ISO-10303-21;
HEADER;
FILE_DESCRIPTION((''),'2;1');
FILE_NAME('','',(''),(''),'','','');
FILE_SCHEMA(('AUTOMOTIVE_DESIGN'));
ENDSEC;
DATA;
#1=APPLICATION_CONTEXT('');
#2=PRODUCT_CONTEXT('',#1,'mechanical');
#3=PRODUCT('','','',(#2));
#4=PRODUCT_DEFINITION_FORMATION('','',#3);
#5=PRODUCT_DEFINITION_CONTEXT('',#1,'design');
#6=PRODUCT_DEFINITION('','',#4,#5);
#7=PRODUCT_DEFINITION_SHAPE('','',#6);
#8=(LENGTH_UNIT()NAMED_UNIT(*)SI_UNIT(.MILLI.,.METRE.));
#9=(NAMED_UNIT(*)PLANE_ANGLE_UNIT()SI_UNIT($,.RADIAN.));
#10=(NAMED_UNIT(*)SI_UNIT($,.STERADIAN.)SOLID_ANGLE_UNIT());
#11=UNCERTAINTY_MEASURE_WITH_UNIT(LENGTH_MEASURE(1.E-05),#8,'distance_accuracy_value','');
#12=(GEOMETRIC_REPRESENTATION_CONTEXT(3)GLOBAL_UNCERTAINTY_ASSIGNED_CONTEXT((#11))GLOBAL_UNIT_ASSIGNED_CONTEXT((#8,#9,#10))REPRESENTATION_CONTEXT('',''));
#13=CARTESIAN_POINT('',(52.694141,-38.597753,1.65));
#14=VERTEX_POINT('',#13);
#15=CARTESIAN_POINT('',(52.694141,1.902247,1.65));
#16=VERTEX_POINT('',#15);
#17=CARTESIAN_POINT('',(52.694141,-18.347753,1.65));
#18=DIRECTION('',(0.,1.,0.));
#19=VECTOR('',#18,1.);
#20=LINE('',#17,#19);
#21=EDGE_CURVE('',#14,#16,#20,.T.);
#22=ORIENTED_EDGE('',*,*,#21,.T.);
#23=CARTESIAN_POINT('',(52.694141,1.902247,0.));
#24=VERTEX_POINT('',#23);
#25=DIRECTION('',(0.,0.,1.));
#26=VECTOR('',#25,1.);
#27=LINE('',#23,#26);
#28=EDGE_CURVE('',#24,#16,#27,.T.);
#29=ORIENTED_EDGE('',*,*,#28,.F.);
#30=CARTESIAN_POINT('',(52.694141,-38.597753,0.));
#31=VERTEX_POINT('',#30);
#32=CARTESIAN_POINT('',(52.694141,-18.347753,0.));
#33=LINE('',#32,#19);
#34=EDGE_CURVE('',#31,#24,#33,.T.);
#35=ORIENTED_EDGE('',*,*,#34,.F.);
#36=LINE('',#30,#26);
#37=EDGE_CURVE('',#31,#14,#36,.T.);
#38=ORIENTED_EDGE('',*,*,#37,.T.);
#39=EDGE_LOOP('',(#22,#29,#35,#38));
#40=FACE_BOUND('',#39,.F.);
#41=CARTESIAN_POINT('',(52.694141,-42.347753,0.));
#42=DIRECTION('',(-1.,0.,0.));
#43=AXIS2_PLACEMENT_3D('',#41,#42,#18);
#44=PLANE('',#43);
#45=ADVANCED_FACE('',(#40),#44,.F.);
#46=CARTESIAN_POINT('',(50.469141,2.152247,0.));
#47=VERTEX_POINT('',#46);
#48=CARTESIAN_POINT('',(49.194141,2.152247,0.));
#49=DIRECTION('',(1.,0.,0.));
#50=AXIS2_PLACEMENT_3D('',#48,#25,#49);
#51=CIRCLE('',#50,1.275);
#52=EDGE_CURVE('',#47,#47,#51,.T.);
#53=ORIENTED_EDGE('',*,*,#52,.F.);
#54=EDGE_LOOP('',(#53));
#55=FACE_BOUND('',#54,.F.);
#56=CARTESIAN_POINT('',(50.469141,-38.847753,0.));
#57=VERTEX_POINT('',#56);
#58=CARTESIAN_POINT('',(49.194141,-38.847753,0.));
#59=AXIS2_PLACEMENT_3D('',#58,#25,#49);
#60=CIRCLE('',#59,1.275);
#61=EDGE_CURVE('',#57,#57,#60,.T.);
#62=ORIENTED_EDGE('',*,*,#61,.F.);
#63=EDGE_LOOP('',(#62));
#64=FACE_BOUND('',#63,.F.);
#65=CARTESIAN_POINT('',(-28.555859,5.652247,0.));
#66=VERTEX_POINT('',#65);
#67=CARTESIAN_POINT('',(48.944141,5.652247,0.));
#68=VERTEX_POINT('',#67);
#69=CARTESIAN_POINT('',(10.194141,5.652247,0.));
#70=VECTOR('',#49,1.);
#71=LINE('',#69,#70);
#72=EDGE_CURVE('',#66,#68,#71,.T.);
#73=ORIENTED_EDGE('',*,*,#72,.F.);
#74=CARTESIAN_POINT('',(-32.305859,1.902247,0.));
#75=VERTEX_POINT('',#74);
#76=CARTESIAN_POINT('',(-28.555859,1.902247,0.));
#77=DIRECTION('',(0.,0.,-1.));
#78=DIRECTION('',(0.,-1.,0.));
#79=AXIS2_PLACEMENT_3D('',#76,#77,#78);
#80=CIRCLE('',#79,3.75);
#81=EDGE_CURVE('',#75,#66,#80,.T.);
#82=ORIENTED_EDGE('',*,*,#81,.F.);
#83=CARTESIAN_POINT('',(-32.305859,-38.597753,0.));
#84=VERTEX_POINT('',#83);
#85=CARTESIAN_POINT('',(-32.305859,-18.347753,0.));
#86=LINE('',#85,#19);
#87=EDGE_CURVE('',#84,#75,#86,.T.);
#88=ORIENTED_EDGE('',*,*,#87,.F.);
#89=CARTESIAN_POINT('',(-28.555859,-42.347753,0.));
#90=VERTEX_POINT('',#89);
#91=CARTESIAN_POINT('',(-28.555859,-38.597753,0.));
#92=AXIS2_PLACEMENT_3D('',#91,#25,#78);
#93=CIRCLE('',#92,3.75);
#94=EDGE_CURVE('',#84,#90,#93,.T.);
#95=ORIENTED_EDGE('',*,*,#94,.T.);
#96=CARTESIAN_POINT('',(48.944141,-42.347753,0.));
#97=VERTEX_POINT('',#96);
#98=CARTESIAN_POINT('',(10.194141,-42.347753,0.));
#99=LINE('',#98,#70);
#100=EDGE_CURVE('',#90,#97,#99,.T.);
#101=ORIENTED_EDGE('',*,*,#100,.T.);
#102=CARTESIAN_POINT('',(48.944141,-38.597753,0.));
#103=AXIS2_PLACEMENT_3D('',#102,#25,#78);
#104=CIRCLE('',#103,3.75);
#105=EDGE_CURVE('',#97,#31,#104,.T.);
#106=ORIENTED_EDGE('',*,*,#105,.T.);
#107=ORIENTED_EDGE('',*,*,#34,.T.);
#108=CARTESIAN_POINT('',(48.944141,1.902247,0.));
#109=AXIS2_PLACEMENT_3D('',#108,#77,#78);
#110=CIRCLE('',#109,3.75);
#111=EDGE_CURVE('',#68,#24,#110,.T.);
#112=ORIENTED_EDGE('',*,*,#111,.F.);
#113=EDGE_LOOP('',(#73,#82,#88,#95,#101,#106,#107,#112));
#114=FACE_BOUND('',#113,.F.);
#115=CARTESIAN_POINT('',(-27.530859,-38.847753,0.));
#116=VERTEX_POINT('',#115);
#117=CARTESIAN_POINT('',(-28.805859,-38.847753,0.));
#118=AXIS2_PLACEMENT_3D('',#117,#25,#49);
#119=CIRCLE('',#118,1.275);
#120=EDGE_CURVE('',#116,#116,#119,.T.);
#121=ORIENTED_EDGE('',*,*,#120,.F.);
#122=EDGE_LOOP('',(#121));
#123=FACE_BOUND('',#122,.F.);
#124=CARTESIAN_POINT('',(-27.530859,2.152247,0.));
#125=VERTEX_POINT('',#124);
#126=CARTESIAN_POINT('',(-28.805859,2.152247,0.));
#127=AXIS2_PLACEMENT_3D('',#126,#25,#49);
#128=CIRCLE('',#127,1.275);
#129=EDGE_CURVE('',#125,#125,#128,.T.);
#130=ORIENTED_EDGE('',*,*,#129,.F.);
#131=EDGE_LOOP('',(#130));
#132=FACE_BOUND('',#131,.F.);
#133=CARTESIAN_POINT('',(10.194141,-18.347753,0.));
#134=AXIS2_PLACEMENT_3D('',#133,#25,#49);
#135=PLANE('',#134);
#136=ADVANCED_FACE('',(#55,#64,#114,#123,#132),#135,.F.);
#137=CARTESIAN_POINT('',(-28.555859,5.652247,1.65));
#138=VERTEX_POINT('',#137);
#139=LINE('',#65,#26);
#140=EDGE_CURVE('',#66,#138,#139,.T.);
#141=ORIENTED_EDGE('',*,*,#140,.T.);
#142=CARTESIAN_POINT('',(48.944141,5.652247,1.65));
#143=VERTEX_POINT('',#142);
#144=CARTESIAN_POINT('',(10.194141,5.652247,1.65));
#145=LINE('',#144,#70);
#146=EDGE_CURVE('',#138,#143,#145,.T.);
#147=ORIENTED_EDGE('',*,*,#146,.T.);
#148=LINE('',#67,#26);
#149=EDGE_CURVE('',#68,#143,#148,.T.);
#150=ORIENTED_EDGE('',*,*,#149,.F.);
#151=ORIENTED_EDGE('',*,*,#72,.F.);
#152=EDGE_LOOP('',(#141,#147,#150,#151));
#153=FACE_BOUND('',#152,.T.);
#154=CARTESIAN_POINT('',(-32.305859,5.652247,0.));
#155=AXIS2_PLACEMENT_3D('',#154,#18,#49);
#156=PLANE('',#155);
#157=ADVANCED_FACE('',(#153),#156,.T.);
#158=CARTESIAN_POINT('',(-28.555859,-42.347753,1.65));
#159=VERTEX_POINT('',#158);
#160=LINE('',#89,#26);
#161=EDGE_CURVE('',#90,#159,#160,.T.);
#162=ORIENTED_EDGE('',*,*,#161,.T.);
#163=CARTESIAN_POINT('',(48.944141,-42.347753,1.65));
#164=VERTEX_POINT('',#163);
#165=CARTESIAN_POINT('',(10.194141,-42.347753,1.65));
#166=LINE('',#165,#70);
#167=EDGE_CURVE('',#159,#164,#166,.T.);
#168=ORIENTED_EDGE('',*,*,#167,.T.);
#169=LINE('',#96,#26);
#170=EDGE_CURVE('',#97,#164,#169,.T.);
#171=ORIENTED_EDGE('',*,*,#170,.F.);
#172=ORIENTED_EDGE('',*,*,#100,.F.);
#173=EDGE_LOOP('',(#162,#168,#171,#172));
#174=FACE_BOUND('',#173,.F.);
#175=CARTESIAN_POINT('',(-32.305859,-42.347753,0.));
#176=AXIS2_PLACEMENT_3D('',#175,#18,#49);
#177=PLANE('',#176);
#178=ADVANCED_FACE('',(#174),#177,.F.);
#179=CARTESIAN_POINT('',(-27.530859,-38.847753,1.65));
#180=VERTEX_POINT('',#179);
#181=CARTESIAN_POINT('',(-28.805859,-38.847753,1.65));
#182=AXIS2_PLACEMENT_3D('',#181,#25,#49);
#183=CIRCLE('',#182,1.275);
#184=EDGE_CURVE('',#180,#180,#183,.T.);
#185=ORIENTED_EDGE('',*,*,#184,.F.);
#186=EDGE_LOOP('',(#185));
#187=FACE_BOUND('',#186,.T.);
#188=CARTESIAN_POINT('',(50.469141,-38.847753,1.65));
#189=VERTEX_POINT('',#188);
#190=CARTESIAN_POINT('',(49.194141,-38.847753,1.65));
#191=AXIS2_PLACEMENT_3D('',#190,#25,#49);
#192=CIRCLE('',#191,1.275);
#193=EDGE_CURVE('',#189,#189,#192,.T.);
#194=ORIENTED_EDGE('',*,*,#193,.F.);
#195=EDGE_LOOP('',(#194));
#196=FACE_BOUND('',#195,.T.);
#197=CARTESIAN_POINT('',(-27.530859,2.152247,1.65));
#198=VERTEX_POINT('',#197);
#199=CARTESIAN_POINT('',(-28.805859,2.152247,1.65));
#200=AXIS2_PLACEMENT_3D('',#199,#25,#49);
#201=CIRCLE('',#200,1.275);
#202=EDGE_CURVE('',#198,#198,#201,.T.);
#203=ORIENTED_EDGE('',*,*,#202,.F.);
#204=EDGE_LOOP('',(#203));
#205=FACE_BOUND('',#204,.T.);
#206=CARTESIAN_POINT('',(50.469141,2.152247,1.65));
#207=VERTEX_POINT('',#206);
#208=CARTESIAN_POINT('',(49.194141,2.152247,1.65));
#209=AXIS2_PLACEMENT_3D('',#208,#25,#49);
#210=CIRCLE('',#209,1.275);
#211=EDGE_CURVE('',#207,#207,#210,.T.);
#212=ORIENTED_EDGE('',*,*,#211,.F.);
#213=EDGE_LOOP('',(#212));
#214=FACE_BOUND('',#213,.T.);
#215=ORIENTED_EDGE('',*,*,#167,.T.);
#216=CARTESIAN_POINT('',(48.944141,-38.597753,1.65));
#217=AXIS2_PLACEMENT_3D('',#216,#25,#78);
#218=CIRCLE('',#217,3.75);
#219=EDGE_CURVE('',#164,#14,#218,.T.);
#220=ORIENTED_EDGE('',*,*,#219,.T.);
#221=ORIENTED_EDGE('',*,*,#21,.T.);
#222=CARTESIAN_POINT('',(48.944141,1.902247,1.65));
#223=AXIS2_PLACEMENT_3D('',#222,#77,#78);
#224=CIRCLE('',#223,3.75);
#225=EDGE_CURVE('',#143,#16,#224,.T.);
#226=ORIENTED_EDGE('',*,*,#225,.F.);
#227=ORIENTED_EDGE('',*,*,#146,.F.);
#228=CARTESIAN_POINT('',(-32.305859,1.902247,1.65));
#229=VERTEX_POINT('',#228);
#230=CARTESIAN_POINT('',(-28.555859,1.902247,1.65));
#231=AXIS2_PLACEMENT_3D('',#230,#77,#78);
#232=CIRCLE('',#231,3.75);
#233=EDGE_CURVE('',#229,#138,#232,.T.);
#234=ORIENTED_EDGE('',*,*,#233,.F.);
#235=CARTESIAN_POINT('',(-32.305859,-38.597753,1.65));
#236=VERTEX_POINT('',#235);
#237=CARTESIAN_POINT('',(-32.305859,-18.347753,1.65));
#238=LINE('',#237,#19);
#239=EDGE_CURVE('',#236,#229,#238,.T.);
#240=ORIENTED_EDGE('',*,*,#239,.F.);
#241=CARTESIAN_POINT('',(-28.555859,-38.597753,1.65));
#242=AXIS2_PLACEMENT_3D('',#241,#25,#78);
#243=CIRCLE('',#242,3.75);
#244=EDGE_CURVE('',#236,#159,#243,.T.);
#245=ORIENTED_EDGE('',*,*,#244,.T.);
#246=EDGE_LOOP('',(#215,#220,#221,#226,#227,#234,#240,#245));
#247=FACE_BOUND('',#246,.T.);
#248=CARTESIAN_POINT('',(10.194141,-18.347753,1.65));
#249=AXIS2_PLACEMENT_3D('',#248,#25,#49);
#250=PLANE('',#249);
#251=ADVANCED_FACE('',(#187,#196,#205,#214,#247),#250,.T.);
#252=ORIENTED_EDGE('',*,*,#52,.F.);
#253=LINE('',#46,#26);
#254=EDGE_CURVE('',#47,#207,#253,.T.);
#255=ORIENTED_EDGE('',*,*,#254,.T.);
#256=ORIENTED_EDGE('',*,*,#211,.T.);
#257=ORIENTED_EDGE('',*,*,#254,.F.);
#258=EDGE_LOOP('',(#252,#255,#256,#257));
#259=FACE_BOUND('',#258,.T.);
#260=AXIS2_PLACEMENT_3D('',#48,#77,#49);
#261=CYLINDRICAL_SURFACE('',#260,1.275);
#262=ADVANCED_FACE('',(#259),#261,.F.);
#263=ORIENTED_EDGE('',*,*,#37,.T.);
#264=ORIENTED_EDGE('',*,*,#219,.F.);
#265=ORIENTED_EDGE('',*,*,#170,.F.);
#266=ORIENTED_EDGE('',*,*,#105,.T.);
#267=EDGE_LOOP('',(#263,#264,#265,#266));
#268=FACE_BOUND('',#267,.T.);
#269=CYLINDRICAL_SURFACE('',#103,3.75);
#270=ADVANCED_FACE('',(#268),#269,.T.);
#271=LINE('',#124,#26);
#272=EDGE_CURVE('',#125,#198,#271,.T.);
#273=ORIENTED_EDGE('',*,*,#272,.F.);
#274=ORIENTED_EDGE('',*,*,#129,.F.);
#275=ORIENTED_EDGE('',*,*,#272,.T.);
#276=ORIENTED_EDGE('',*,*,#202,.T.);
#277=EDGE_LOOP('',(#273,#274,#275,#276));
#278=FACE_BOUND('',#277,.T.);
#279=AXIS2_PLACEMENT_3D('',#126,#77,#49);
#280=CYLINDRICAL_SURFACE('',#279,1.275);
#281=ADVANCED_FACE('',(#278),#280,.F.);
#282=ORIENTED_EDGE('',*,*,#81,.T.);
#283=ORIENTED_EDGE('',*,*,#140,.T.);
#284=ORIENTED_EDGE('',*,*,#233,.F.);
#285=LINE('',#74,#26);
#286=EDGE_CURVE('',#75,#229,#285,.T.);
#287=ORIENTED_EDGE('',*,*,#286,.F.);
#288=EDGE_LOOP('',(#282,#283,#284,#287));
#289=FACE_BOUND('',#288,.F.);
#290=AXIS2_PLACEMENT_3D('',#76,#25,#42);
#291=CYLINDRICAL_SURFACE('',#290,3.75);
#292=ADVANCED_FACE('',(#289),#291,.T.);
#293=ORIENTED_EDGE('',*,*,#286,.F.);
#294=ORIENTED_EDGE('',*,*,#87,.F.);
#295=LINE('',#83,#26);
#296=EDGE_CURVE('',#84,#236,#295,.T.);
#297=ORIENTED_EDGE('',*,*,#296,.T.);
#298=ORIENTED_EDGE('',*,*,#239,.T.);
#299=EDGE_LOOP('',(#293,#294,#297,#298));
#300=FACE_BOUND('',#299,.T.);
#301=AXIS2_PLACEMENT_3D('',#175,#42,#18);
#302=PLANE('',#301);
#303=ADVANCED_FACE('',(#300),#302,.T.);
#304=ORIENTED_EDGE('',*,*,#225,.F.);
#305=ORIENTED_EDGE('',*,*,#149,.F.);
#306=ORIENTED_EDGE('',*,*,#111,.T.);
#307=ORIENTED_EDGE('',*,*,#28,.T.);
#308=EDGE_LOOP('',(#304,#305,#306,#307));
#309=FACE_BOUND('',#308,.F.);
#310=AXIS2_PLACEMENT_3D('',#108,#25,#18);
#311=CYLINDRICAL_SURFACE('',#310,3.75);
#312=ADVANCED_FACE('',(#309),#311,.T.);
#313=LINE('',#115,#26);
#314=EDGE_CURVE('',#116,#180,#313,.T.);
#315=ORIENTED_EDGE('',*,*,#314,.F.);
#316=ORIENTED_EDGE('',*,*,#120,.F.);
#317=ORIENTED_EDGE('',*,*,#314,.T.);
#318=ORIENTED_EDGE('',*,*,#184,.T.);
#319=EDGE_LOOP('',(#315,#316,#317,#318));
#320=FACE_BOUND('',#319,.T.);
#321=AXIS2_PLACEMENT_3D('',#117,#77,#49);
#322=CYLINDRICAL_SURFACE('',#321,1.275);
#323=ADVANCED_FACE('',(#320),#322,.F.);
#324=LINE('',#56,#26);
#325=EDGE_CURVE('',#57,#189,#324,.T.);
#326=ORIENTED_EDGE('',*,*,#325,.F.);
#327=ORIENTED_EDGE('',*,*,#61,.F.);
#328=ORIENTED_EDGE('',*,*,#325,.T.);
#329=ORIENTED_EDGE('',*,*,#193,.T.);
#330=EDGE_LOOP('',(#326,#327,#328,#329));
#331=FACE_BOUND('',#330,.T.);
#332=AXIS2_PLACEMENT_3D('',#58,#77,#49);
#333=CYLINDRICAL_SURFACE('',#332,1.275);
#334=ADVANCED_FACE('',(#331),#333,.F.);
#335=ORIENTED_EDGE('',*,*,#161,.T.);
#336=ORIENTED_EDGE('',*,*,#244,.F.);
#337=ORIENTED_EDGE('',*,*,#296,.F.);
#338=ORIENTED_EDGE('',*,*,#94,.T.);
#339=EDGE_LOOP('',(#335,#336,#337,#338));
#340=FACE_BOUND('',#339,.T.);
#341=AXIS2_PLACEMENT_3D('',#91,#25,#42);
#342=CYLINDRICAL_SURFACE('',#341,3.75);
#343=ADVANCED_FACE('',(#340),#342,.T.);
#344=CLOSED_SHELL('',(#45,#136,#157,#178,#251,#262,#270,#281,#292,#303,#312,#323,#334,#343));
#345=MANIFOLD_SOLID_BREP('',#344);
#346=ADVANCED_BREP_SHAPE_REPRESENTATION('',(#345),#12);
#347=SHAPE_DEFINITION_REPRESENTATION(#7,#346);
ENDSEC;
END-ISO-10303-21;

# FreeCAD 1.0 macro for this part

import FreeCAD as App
import Part
import Sketcher
from FreeCAD import Vector


def edges_at(feature, points):
    """Names of the edges that pass closest to the given points."""
    edges = feature.Shape.Edges
    near = lambda p: min(range(len(edges)), key=lambda i: edges[i].distToShape(Part.Vertex(*p))[0])
    return sorted({f"Edge{near(p) + 1}" for p in points})


def add_polygon(sketch, points):
    """Adds a closed chain of lines whose ends are joined by coincident constraints."""
    first, n = sketch.GeometryCount, len(points)
    for a, b in zip(points, points[1:] + points[:1]):
        sketch.addGeometry(Part.LineSegment(App.Vector(*a, 0), App.Vector(*b, 0)), False)
    for i in range(n):
        sketch.addConstraint(Sketcher.Constraint("Coincident", first + i, 2, first + (i + 1) % n, 1))

doc = App.newDocument("Part")
body = doc.addObject("PartDesign::Body", "Body")

sketch1 = doc.addObject("Sketcher::SketchObject", "Sketch")
body.addObject(sketch1)
sketch1.AttachmentSupport = (doc.XY_Plane, [""])
sketch1.MapMode = "FlatFace"
add_polygon(sketch1, [(-32.3, 5.7), (-32.3, -42.3), (52.7, -42.3), (52.7, 5.7)])
sketch1.addGeometry(Part.Circle(Vector(-28.8, -38.8, 0), Vector(0, 0, 1), 1.3), False)
sketch1.addGeometry(Part.Circle(Vector(49.2, -38.8, 0), Vector(0, 0, 1), 1.3), False)
sketch1.addGeometry(Part.Circle(Vector(-28.8, 2.2, 0), Vector(0, 0, 1), 1.3), False)
sketch1.addGeometry(Part.Circle(Vector(49.2, 2.2, 0), Vector(0, 0, 1), 1.3), False)
sketch1.addConstraint(Sketcher.Constraint("Vertical", 0))
sketch1.addConstraint(Sketcher.Constraint("Horizontal", 1))
sketch1.addConstraint(Sketcher.Constraint("Vertical", 2))
sketch1.addConstraint(Sketcher.Constraint("Horizontal", 3))
sketch1.addConstraint(Sketcher.Constraint("Equal", 4, 5))
sketch1.addConstraint(Sketcher.Constraint("Equal", 5, 6))
sketch1.addConstraint(Sketcher.Constraint("Equal", 6, 7))
sketch1.addConstraint(Sketcher.Constraint("Horizontal", 4, 3, 5, 3))
sketch1.addConstraint(Sketcher.Constraint("Horizontal", 6, 3, 7, 3))
sketch1.addConstraint(Sketcher.Constraint("Vertical", 4, 3, 6, 3))
sketch1.addConstraint(Sketcher.Constraint("Vertical", 5, 3, 7, 3))
sketch1.addConstraint(Sketcher.Constraint("Diameter", 4, 2.55))
sketch1.addConstraint(Sketcher.Constraint("DistanceX", 1, 1, 1, 2, 85.0))
sketch1.addConstraint(Sketcher.Constraint("DistanceY", 0, 2, 0, 1, 48.0))
sketch1.addConstraint(Sketcher.Constraint("DistanceX", 4, 3, 5, 3, 78.0))
sketch1.addConstraint(Sketcher.Constraint("DistanceY", 4, 3, 6, 3, 41.0))
sketch1.addConstraint(Sketcher.Constraint("DistanceX", 0, 2, 4, 3, 3.5))
sketch1.addConstraint(Sketcher.Constraint("DistanceY", 0, 2, 4, 3, 3.5))
sketch1.addConstraint(Sketcher.Constraint("DistanceX", 4, 3, -1, 1, 28.805859))
sketch1.addConstraint(Sketcher.Constraint("DistanceY", 4, 3, -1, 1, 38.847753))
pad1 = doc.addObject("PartDesign::Pad", "Pad")
body.addObject(pad1)
pad1.Profile = sketch1
pad1.Length = 1.65
doc.recompute()

fillet = doc.addObject("PartDesign::Fillet", "Fillet")
body.addObject(fillet)
fillet.Base = (pad1, edges_at(pad1, [
    (52.694, -42.348, 0.825),
    (-32.306, -42.348, 0.825),
    (-32.306, 5.652, 0.825),
    (52.694, 5.652, 0.825),
]))
fillet.Radius = 3.75

doc.recompute()
